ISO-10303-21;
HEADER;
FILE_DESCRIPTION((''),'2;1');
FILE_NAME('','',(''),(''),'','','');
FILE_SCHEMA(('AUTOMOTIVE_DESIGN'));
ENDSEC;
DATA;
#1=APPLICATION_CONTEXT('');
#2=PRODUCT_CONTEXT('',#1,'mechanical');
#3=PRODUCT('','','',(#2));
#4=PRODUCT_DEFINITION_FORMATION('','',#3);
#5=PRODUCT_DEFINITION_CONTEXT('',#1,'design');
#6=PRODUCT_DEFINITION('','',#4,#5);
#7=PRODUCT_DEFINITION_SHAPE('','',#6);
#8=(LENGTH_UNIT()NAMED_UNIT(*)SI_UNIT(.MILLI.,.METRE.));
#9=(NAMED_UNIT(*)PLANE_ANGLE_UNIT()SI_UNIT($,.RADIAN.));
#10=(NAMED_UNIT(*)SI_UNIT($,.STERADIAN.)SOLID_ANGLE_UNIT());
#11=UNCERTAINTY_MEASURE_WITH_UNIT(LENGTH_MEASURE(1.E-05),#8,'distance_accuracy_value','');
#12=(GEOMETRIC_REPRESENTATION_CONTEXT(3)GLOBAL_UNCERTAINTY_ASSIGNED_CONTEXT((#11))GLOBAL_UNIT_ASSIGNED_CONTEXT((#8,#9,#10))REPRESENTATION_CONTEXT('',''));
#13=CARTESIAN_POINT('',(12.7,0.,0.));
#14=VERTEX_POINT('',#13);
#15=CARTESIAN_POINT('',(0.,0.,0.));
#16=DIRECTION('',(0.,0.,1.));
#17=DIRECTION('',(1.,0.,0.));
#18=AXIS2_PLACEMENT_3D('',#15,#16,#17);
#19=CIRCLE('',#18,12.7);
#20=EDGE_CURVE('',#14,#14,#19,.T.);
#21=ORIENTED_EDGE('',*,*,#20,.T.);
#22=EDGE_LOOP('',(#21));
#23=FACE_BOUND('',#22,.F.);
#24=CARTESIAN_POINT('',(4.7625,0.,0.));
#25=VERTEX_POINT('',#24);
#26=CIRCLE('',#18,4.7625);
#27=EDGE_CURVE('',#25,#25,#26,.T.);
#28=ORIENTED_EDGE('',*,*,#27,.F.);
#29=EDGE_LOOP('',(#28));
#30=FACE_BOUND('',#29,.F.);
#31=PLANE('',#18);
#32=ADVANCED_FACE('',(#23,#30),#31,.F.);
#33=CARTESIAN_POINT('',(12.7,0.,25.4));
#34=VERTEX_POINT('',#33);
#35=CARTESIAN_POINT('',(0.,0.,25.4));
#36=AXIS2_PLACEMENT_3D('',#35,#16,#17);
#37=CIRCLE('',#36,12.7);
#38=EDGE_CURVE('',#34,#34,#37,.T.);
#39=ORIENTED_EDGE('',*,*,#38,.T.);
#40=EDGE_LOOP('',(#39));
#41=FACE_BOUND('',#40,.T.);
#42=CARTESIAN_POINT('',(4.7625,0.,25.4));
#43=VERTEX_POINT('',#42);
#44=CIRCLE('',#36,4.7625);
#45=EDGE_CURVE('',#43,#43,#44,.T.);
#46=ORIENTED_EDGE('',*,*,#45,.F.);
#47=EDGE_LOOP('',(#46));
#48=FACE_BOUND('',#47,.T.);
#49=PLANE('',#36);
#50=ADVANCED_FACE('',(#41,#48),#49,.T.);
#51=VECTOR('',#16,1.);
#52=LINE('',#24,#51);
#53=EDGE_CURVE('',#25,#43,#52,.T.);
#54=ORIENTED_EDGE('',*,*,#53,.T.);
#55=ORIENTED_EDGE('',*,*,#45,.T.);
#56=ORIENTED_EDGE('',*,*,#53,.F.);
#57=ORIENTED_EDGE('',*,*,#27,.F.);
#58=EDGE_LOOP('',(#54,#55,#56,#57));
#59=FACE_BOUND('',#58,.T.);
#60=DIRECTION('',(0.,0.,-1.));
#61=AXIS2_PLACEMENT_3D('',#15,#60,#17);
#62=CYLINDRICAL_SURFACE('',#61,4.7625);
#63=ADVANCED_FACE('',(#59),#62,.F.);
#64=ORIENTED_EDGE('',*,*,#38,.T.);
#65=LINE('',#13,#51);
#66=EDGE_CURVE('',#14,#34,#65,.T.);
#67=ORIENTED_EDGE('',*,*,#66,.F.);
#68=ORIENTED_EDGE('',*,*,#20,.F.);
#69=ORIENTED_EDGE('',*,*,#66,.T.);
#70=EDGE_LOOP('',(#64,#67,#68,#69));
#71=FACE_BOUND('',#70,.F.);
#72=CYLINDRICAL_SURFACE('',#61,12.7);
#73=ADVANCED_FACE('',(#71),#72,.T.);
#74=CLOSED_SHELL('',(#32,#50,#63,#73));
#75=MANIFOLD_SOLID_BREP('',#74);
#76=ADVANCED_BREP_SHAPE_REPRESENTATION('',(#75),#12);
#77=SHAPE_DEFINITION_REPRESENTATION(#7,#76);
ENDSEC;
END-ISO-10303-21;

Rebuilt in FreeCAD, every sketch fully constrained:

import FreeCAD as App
import Part
import Sketcher
Q = App.Units.Quantity

doc = App.newDocument("Part")
body = doc.addObject("PartDesign::Body", "Body")

# Sketch on XY plane
sketch1 = body.newObject("Sketcher::SketchObject", "Sketch")
sketch1.AttachmentSupport = (doc.getObject("XY_Plane"), [""])
sketch1.MapMode = "FlatFace"
sketch1.addGeometry([
    Part.Circle(App.Vector(0, 0, 0), App.Vector(0, 0, 1), 12.7),
    Part.Circle(App.Vector(0, 0, 0), App.Vector(0, 0, 1), 4.7625),
], False)
sketch1.addConstraint([
    Sketcher.Constraint("Coincident", 0, 3, -1, 1),
    Sketcher.Constraint("Coincident", 1, 3, -1, 1),
    Sketcher.Constraint("Diameter", 0, Q("1 in")),
    Sketcher.Constraint("Diameter", 1, Q("0.375 in")),
])
pad1 = body.newObject("PartDesign::Pad", "Pad")
pad1.Profile = sketch1
pad1.Length = Q("1 in")

doc.recompute()
